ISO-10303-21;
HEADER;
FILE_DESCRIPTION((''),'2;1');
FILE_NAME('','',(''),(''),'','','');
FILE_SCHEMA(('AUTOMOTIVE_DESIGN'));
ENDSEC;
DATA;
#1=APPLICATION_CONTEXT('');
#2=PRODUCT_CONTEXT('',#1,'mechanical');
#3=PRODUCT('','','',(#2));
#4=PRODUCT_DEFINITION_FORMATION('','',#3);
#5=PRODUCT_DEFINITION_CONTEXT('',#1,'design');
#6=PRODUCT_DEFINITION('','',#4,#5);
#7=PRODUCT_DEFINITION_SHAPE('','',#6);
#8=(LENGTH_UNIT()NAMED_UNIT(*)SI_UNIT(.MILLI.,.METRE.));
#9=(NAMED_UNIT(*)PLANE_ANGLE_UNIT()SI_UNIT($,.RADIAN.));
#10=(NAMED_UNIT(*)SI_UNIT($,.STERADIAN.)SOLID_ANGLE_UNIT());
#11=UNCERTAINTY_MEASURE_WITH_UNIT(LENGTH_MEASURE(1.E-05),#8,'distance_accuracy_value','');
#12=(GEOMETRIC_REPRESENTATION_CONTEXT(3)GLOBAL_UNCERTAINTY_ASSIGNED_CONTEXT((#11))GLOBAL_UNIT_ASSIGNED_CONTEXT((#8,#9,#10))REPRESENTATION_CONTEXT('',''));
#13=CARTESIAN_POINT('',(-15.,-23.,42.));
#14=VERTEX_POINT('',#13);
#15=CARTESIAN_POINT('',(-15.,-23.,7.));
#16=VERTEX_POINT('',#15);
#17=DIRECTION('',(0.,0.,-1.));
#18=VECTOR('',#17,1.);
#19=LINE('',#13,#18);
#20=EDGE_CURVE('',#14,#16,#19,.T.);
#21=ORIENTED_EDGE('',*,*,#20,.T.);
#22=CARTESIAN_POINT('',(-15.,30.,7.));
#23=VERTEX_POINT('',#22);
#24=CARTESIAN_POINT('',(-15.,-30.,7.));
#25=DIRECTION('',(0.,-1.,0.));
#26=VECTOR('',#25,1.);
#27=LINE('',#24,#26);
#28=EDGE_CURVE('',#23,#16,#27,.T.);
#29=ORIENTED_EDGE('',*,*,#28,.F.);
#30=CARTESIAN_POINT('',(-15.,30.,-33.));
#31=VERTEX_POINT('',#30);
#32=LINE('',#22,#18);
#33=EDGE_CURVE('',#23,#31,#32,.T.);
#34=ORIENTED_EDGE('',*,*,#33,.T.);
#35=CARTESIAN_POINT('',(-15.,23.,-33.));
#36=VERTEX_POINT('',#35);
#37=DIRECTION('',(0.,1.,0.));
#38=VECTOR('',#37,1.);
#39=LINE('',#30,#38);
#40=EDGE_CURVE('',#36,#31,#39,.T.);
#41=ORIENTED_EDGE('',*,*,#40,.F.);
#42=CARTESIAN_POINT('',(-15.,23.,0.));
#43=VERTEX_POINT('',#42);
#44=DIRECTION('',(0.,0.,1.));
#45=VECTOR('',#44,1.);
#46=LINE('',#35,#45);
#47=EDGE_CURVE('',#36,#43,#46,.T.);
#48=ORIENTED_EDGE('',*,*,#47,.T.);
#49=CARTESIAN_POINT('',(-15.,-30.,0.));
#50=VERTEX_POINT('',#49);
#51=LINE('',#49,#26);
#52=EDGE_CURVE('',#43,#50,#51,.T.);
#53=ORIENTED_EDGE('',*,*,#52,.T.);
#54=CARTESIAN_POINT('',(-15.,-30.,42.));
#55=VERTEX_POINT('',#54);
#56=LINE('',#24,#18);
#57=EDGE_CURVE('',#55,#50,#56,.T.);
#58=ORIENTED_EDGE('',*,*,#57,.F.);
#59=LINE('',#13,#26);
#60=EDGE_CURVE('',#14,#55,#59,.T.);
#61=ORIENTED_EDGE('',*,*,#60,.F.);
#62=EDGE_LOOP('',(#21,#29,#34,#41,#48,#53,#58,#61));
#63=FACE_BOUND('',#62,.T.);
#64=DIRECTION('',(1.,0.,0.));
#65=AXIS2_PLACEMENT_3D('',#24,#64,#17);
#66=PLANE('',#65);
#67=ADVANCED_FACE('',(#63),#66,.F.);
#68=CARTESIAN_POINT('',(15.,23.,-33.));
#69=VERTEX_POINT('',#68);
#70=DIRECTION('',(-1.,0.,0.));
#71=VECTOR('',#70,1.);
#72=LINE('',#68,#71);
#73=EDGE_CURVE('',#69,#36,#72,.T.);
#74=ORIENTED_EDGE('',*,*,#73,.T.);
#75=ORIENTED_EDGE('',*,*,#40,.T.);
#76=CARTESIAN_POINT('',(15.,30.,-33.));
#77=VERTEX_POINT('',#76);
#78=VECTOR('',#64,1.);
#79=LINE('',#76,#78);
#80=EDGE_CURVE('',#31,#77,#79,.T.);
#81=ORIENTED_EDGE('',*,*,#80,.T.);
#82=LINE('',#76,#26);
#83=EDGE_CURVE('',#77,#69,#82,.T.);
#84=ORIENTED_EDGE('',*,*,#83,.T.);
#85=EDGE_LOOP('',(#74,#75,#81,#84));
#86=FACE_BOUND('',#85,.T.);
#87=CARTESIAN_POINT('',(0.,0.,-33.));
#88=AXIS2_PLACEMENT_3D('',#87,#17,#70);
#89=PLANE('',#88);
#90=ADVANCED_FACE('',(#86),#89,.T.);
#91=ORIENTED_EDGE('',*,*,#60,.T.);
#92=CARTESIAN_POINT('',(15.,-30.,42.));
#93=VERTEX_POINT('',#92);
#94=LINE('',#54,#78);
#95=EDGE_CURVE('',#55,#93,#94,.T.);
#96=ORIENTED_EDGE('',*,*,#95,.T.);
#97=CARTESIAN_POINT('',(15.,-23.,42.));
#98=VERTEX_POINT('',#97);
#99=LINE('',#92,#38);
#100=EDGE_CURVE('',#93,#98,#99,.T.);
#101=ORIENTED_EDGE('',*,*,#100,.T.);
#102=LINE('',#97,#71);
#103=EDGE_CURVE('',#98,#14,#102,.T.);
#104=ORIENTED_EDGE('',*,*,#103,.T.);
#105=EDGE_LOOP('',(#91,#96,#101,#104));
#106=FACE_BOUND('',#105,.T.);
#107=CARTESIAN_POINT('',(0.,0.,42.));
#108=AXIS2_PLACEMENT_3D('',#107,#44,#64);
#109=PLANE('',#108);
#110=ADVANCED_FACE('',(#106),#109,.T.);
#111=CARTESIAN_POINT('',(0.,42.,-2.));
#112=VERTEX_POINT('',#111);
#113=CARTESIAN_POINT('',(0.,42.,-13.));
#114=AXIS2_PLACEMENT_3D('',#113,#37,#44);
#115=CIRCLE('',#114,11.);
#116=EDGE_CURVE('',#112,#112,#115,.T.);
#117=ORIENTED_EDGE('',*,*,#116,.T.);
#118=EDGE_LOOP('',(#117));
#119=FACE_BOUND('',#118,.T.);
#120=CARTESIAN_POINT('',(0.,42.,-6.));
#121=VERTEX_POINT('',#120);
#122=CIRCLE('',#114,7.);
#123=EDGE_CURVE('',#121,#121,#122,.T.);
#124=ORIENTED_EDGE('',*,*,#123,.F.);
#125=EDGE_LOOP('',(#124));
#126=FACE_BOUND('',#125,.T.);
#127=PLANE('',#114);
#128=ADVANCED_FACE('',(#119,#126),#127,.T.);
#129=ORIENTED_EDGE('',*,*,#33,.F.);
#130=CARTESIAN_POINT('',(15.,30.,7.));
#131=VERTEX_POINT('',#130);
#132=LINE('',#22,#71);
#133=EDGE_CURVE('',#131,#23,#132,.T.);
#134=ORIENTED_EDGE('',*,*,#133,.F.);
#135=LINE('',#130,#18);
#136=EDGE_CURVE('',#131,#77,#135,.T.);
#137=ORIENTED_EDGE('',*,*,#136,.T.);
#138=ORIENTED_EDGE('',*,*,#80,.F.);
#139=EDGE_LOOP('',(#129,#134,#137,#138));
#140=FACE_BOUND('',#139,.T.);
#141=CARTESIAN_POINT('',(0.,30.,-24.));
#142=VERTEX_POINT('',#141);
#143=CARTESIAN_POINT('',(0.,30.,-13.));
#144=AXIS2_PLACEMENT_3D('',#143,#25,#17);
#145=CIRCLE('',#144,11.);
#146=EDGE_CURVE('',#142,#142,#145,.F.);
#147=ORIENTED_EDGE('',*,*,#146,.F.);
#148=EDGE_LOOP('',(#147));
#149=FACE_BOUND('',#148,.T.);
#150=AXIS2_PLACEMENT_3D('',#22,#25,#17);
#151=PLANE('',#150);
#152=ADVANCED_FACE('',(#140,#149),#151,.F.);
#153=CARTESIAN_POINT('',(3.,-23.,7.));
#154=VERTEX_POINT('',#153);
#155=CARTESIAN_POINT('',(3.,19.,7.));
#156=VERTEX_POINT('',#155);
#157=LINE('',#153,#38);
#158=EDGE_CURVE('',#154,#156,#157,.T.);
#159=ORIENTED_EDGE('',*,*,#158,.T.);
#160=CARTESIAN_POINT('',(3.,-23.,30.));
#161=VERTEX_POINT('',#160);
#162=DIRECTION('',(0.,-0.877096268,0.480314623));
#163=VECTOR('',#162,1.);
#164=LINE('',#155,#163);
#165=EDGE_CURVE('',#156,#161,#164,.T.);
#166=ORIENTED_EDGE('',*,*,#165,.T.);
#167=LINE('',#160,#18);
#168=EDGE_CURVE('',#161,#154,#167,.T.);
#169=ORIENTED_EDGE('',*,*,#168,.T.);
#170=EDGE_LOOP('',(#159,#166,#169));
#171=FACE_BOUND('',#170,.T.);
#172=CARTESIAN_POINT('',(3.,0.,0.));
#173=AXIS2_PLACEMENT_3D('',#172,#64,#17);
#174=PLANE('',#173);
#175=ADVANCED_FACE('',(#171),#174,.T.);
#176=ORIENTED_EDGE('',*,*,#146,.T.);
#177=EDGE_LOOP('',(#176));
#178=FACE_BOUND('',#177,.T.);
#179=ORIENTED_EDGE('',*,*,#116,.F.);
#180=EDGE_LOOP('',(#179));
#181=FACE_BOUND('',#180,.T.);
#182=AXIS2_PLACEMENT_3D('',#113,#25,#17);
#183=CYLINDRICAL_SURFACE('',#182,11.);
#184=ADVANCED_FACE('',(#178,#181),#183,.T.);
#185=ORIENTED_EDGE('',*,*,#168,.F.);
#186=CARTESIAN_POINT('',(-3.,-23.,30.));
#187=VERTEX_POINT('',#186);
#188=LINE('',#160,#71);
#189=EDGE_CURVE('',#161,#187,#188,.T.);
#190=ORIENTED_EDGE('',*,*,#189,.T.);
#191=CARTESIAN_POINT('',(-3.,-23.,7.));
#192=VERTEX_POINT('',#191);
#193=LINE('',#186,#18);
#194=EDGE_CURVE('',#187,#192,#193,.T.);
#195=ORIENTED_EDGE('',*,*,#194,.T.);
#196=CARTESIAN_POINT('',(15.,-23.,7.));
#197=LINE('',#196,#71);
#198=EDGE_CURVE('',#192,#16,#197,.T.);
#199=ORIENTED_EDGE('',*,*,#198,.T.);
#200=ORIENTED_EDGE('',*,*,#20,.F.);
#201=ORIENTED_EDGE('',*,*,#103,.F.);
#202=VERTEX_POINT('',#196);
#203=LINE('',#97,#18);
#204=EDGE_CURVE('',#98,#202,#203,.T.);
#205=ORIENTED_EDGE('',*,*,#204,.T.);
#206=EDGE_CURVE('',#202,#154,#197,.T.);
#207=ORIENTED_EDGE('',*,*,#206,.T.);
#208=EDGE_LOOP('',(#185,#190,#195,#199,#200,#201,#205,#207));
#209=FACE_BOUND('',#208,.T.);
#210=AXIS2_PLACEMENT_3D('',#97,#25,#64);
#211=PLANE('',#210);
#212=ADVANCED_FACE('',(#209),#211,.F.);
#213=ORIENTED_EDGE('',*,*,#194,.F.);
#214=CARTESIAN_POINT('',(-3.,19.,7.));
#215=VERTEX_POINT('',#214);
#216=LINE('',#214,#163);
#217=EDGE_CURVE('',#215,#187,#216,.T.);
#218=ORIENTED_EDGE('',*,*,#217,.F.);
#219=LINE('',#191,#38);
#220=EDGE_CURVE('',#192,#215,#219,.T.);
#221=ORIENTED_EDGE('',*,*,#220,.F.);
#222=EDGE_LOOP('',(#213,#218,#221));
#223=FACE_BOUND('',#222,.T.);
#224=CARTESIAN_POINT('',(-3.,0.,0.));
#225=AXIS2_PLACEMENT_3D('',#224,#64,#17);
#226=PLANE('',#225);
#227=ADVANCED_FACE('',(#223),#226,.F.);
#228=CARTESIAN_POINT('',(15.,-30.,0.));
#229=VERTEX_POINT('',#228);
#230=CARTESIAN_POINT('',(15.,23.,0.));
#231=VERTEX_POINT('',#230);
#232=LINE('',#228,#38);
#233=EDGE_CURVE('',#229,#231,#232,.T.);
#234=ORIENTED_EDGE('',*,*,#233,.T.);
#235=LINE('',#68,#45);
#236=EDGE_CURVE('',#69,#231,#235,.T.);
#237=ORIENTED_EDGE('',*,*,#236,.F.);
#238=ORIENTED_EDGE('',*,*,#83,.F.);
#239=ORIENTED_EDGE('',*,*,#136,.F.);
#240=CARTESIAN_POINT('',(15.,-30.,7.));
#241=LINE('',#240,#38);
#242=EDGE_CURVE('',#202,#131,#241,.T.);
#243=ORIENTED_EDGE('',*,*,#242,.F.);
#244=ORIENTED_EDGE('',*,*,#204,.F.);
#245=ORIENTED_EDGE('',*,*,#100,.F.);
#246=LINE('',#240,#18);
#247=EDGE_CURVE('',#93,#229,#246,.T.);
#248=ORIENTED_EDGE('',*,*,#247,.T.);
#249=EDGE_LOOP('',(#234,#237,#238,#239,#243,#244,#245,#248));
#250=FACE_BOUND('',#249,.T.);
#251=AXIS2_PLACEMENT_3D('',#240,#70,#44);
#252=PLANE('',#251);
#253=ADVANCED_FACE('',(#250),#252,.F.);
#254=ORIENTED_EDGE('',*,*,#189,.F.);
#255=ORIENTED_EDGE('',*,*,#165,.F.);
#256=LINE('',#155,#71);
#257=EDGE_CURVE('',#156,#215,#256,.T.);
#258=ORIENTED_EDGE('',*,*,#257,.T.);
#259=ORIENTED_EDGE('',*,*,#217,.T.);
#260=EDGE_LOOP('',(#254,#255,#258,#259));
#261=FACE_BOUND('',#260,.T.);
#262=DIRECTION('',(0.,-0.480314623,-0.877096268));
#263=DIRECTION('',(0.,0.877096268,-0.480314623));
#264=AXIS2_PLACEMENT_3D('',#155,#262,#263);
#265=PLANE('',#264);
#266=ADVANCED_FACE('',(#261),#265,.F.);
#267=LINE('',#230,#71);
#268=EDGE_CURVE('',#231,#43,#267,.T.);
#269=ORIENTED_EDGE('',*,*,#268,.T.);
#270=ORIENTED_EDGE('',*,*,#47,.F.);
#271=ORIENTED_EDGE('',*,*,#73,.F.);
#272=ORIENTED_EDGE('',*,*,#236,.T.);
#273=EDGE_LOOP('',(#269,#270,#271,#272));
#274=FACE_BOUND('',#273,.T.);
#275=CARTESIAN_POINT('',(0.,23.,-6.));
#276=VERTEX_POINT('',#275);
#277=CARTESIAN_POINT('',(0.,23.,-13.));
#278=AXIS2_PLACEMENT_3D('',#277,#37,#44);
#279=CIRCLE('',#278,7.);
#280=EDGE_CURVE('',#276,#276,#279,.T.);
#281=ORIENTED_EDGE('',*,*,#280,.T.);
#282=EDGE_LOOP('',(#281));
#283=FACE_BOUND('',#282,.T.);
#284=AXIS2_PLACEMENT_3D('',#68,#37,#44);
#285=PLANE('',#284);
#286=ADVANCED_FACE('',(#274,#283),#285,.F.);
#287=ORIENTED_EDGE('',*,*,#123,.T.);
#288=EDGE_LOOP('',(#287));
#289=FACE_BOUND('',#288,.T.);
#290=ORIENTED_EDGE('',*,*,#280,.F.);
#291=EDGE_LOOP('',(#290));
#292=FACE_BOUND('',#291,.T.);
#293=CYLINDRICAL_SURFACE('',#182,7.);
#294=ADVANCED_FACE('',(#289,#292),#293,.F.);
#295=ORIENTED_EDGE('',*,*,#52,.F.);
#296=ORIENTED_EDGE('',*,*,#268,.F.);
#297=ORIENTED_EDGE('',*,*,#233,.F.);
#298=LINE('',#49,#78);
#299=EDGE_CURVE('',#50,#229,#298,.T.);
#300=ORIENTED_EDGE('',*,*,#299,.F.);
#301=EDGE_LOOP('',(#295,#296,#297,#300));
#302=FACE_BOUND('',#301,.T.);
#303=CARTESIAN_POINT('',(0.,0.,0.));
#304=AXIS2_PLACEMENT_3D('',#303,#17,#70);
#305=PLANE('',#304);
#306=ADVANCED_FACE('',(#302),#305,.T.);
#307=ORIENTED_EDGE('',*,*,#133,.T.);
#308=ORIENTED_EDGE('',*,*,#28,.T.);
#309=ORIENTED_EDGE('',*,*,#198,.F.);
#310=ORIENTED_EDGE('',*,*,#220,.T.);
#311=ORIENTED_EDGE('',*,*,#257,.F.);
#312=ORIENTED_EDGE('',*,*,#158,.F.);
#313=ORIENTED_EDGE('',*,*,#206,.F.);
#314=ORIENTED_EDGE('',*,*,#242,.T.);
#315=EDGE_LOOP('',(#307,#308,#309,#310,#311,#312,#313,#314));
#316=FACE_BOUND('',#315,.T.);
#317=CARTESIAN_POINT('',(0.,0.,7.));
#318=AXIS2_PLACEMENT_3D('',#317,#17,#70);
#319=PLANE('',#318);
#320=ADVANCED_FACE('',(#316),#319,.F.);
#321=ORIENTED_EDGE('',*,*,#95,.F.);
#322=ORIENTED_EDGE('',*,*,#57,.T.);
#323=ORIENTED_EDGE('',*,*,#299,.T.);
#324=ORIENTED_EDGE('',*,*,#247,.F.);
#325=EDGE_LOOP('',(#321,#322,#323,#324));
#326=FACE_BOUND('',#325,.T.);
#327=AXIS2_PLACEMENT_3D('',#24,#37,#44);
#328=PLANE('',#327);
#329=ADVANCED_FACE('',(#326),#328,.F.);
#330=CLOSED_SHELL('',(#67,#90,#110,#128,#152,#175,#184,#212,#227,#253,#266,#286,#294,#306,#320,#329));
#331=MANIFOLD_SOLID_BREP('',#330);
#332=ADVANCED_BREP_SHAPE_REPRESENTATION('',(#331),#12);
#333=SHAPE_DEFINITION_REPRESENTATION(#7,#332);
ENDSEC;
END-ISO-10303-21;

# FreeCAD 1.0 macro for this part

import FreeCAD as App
import Part
import Sketcher

V = App.Vector
Q = App.Units.Quantity


def add_polygon(sketch, points):
    """Adds a closed chain of lines whose ends are joined by coincident constraints."""
    first, n = sketch.GeometryCount, len(points)
    for a, b in zip(points, points[1:] + points[:1]):
        sketch.addGeometry(Part.LineSegment(App.Vector(*a, 0), App.Vector(*b, 0)), False)
    for i in range(n):
        sketch.addConstraint(Sketcher.Constraint("Coincident", first + i, 2, first + (i + 1) % n, 1))

doc = App.newDocument("Part")
body = doc.addObject("PartDesign::Body", "Body")

sketch1 = doc.addObject("Sketcher::SketchObject", "Sketch")
body.addObject(sketch1)
sketch1.AttachmentSupport = (doc.XY_Plane, [""])
sketch1.MapMode = "FlatFace"
add_polygon(sketch1, [(-15, 30), (-15, -30), (15, -30), (15, 30)])
sketch1.addConstraint(Sketcher.Constraint("Vertical", 0))
sketch1.addConstraint(Sketcher.Constraint("Horizontal", 1))
sketch1.addConstraint(Sketcher.Constraint("Vertical", 2))
sketch1.addConstraint(Sketcher.Constraint("Horizontal", 3))
sketch1.addConstraint(Sketcher.Constraint("Symmetric", 0, 2, 2, 2, -1, 1))
sketch1.addConstraint(Sketcher.Constraint("DistanceX", 1, 1, 1, 2, Q("30 mm")))
sketch1.addConstraint(Sketcher.Constraint("DistanceY", 0, 2, 0, 1, Q("60 mm")))
pad1 = doc.addObject("PartDesign::Pad", "Pad")
body.addObject(pad1)
pad1.Profile = sketch1
pad1.Length = 7

sketch2 = doc.addObject("Sketcher::SketchObject", "Sketch001")
body.addObject(sketch2)
sketch2.AttachmentSupport = (doc.XY_Plane, [""])
sketch2.MapMode = "FlatFace"
sketch2.AttachmentOffset = App.Placement(V(0, 0, 7), App.Rotation())
add_polygon(sketch2, [(-15, -23), (-15, -30), (15, -30), (15, -23)])
sketch2.addConstraint(Sketcher.Constraint("Vertical", 0))
sketch2.addConstraint(Sketcher.Constraint("Horizontal", 1))
sketch2.addConstraint(Sketcher.Constraint("Vertical", 2))
sketch2.addConstraint(Sketcher.Constraint("Horizontal", 3))
sketch2.addConstraint(Sketcher.Constraint("DistanceX", 1, 1, 1, 2, Q("30 mm")))
sketch2.addConstraint(Sketcher.Constraint("DistanceY", 0, 2, 0, 1, Q("7 mm")))
sketch2.addConstraint(Sketcher.Constraint("DistanceX", 0, 2, -1, 1, Q("15 mm")))
sketch2.addConstraint(Sketcher.Constraint("DistanceY", 0, 2, -1, 1, Q("30 mm")))
pad2 = doc.addObject("PartDesign::Pad", "Pad001")
body.addObject(pad2)
pad2.Profile = sketch2
pad2.Length = 35

sketch3 = doc.addObject("Sketcher::SketchObject", "Sketch002")
body.addObject(sketch3)
sketch3.AttachmentSupport = (doc.YZ_Plane, [""])
sketch3.MapMode = "FlatFace"
add_polygon(sketch3, [(-23, 7), (19, 7), (-23, 30)])
sketch3.addConstraint(Sketcher.Constraint("Horizontal", 0))
sketch3.addConstraint(Sketcher.Constraint("Vertical", 2))
sketch3.addConstraint(Sketcher.Constraint("DistanceX", 0, 1, 0, 2, Q("42 mm")))
sketch3.addConstraint(Sketcher.Constraint("DistanceY", 2, 2, 2, 1, Q("23 mm")))
sketch3.addConstraint(Sketcher.Constraint("DistanceX", -1, 1, 0, 2, Q("19 mm")))
sketch3.addConstraint(Sketcher.Constraint("DistanceY", -1, 1, 0, 2, Q("7 mm")))
pad3 = doc.addObject("PartDesign::Pad", "Pad002")
body.addObject(pad3)
pad3.Profile = sketch3
pad3.Length = 6
pad3.Midplane = True

sketch4 = doc.addObject("Sketcher::SketchObject", "Sketch003")
body.addObject(sketch4)
sketch4.AttachmentSupport = (doc.XY_Plane, [""])
sketch4.MapMode = "FlatFace"
add_polygon(sketch4, [(15, 30), (15, 23), (-15, 23), (-15, 30)])
sketch4.addConstraint(Sketcher.Constraint("Vertical", 0))
sketch4.addConstraint(Sketcher.Constraint("Horizontal", 1))
sketch4.addConstraint(Sketcher.Constraint("Vertical", 2))
sketch4.addConstraint(Sketcher.Constraint("Horizontal", 3))
sketch4.addConstraint(Sketcher.Constraint("DistanceX", 1, 2, 1, 1, Q("30 mm")))
sketch4.addConstraint(Sketcher.Constraint("DistanceY", 0, 2, 0, 1, Q("7 mm")))
sketch4.addConstraint(Sketcher.Constraint("DistanceX", -1, 1, 0, 2, Q("15 mm")))
sketch4.addConstraint(Sketcher.Constraint("DistanceY", -1, 1, 0, 2, Q("23 mm")))
pad4 = doc.addObject("PartDesign::Pad", "Pad003")
body.addObject(pad4)
pad4.Profile = sketch4
pad4.Length = 33
pad4.Reversed = True

sketch5 = doc.addObject("Sketcher::SketchObject", "Sketch004")
body.addObject(sketch5)
sketch5.AttachmentSupport = (doc.XZ_Plane, [""])
sketch5.MapMode = "FlatFace"
sketch5.AttachmentOffset = App.Placement(V(0, 0, -30), App.Rotation())
sketch5.addGeometry(Part.Circle(V(0, -13, 0), V(0, 0, 1), 11), False)
sketch5.addGeometry(Part.Circle(V(0, -13, 0), V(0, 0, 1), 7), False)
sketch5.addConstraint(Sketcher.Constraint("Coincident", 1, 3, 0, 3))
sketch5.addConstraint(Sketcher.Constraint("PointOnObject", 0, 3, -2))
sketch5.addConstraint(Sketcher.Constraint("Diameter", 0, Q("22 mm")))
sketch5.addConstraint(Sketcher.Constraint("Diameter", 1, Q("14 mm")))
sketch5.addConstraint(Sketcher.Constraint("DistanceY", 0, 3, -1, 1, Q("13 mm")))
pad5 = doc.addObject("PartDesign::Pad", "Pad004")
body.addObject(pad5)
pad5.Profile = sketch5
pad5.Length = 12
pad5.Reversed = True

sketch6 = doc.addObject("Sketcher::SketchObject", "Sketch005")
body.addObject(sketch6)
sketch6.AttachmentSupport = (doc.XZ_Plane, [""])
sketch6.MapMode = "FlatFace"
sketch6.AttachmentOffset = App.Placement(V(0, 0, -18), App.Rotation())
sketch6.addGeometry(Part.Circle(V(0, -13, 0), V(0, 0, 1), 7), False)
sketch6.addConstraint(Sketcher.Constraint("PointOnObject", 0, 3, -2))
sketch6.addConstraint(Sketcher.Constraint("Diameter", 0, Q("14 mm")))
sketch6.addConstraint(Sketcher.Constraint("DistanceY", 0, 3, -1, 1, Q("13 mm")))
pocket1 = doc.addObject("PartDesign::Pocket", "Pocket")
body.addObject(pocket1)
pocket1.Profile = sketch6
pocket1.Length = 12

doc.recompute()
